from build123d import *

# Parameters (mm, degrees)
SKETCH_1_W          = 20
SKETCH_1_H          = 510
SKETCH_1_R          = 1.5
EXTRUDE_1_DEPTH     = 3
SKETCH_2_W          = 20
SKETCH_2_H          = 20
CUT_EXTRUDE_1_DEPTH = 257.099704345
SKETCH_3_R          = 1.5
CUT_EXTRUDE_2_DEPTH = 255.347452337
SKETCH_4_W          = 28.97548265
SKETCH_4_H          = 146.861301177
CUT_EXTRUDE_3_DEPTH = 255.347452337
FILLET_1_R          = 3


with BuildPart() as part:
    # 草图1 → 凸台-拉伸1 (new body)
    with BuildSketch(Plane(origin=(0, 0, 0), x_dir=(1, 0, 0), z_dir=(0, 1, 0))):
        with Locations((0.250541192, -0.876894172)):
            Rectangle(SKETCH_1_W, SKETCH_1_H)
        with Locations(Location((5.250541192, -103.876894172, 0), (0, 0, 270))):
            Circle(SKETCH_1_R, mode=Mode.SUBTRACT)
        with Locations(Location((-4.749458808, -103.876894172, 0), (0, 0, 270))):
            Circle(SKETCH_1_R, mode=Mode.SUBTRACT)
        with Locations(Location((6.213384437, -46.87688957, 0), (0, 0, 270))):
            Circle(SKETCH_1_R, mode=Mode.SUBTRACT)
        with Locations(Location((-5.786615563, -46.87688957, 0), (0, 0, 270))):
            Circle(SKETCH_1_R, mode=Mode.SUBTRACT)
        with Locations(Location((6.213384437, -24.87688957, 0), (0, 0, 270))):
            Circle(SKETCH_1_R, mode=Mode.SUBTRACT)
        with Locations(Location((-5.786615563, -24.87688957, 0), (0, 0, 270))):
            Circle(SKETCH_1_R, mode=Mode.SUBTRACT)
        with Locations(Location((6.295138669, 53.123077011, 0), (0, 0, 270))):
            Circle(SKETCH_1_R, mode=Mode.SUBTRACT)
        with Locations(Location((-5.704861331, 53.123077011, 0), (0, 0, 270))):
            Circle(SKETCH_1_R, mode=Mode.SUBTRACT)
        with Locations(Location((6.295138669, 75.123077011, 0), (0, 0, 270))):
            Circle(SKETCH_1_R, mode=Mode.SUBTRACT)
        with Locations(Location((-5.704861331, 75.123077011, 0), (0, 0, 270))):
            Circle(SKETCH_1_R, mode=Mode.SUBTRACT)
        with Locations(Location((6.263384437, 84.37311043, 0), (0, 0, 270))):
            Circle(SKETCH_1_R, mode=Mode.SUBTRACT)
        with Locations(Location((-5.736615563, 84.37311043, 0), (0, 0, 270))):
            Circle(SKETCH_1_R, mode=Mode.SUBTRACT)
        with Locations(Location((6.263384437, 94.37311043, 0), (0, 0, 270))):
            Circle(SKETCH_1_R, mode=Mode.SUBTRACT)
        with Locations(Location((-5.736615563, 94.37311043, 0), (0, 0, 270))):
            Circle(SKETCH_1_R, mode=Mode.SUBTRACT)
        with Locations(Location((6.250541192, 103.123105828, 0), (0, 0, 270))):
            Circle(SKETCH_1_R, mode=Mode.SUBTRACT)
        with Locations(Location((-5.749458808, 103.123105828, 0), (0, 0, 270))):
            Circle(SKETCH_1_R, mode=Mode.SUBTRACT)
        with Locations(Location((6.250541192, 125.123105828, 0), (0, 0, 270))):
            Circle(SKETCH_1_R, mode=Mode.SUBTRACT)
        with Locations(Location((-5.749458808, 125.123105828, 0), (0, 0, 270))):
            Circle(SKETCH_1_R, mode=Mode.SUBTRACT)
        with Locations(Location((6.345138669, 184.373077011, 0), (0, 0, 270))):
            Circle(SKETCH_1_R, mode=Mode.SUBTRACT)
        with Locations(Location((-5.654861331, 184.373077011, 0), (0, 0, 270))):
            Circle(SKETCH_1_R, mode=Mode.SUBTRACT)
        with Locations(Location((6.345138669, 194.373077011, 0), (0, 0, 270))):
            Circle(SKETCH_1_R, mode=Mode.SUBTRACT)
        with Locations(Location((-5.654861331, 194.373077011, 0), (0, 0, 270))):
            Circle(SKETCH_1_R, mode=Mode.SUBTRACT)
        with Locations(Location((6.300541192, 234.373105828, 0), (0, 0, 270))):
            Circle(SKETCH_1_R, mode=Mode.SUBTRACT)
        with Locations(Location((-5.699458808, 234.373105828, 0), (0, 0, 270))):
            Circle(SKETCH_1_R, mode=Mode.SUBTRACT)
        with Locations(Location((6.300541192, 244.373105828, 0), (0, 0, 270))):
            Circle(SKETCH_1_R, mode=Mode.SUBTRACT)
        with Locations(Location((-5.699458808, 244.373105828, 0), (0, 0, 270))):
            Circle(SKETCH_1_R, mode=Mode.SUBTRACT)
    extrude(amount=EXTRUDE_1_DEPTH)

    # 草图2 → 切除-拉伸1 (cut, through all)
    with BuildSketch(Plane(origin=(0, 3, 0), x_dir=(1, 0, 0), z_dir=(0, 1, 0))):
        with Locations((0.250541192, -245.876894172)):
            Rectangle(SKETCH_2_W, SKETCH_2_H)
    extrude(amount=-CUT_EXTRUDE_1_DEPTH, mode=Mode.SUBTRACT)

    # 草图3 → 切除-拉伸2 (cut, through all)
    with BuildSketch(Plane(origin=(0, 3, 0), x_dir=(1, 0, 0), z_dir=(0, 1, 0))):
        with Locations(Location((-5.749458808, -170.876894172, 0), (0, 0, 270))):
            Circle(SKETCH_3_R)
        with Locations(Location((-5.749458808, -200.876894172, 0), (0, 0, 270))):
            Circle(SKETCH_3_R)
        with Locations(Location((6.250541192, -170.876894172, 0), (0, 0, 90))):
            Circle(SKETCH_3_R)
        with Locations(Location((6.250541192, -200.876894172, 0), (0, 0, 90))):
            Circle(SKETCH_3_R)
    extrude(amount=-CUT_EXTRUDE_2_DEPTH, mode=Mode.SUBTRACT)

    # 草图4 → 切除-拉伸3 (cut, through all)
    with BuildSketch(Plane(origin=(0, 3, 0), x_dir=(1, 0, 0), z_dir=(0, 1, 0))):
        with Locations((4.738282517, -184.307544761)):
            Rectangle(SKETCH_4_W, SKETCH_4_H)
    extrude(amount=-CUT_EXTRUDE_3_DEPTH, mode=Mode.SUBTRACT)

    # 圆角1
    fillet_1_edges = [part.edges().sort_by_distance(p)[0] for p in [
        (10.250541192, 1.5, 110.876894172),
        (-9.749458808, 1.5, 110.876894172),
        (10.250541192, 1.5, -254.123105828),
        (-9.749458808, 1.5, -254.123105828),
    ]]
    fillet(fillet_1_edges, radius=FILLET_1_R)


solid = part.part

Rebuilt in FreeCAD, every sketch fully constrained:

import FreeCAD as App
import Part
import Sketcher
Q = App.Units.Quantity


def edges_at(feature, points):
    """Names of the edges that pass closest to the given points."""
    edges = feature.Shape.Edges
    near = lambda p: min(range(len(edges)), key=lambda i: edges[i].distToShape(Part.Vertex(*p))[0])
    return sorted({f"Edge{near(p) + 1}" for p in points})

doc = App.newDocument("Part")
body = doc.addObject("PartDesign::Body", "Body")

# Sketch on XZ plane
sketch1 = doc.addObject("Sketcher::SketchObject", "Sketch")
body.addObject(sketch1)
sketch1.AttachmentSupport = (doc.XZ_Plane, [""])
sketch1.MapMode = "FlatFace"
sketch1.addGeometry([
    Part.LineSegment(App.Vector(-9.749459, -254.123106, 0), App.Vector(-9.749459, 255.876894, 0)),  # 0
    Part.LineSegment(App.Vector(-9.749459, 255.876894, 0), App.Vector(10.250541, 255.876894, 0)),  # 1
    Part.LineSegment(App.Vector(10.250541, 255.876894, 0), App.Vector(10.250541, -254.123106, 0)),  # 2
    Part.LineSegment(App.Vector(10.250541, -254.123106, 0), App.Vector(-9.749459, -254.123106, 0)),  # 3
    Part.Circle(App.Vector(-4.749459, 103.876894, 0), App.Vector(0, 0, 1), 1.5),  # 4
    Part.Circle(App.Vector(-5.786616, 46.87689, 0), App.Vector(0, 0, 1), 1.5),  # 5
    Part.Circle(App.Vector(-5.786616, 24.87689, 0), App.Vector(0, 0, 1), 1.5),  # 6
    Part.Circle(App.Vector(-5.704861, -53.123077, 0), App.Vector(0, 0, 1), 1.5),  # 7
    Part.Circle(App.Vector(5.250541, 103.876894, 0), App.Vector(0, 0, 1), 1.5),  # 8
    Part.Circle(App.Vector(6.213384, 46.87689, 0), App.Vector(0, 0, 1), 1.5),  # 9
    Part.Circle(App.Vector(6.213384, 24.87689, 0), App.Vector(0, 0, 1), 1.5),  # 10
    Part.Circle(App.Vector(6.295139, -53.123077, 0), App.Vector(0, 0, 1), 1.5),  # 11
    Part.Circle(App.Vector(-5.704861, -75.123077, 0), App.Vector(0, 0, 1), 1.5),  # 12
    Part.Circle(App.Vector(-5.736616, -84.37311, 0), App.Vector(0, 0, 1), 1.5),  # 13
    Part.Circle(App.Vector(-5.736616, -94.37311, 0), App.Vector(0, 0, 1), 1.5),  # 14
    Part.Circle(App.Vector(-5.749459, -103.123106, 0), App.Vector(0, 0, 1), 1.5),  # 15
    Part.Circle(App.Vector(-5.749459, -125.123106, 0), App.Vector(0, 0, 1), 1.5),  # 16
    Part.Circle(App.Vector(-5.654861, -184.373077, 0), App.Vector(0, 0, 1), 1.5),  # 17
    Part.Circle(App.Vector(-5.654861, -194.373077, 0), App.Vector(0, 0, 1), 1.5),  # 18
    Part.Circle(App.Vector(-5.699459, -234.373106, 0), App.Vector(0, 0, 1), 1.5),  # 19
    Part.Circle(App.Vector(-5.699459, -244.373106, 0), App.Vector(0, 0, 1), 1.5),  # 20
    Part.Circle(App.Vector(6.295139, -75.123077, 0), App.Vector(0, 0, 1), 1.5),  # 21
    Part.Circle(App.Vector(6.263384, -84.37311, 0), App.Vector(0, 0, 1), 1.5),  # 22
    Part.Circle(App.Vector(6.263384, -94.37311, 0), App.Vector(0, 0, 1), 1.5),  # 23
    Part.Circle(App.Vector(6.250541, -103.123106, 0), App.Vector(0, 0, 1), 1.5),  # 24
    Part.Circle(App.Vector(6.250541, -125.123106, 0), App.Vector(0, 0, 1), 1.5),  # 25
    Part.Circle(App.Vector(6.345139, -184.373077, 0), App.Vector(0, 0, 1), 1.5),  # 26
    Part.Circle(App.Vector(6.345139, -194.373077, 0), App.Vector(0, 0, 1), 1.5),  # 27
    Part.Circle(App.Vector(6.300541, -234.373106, 0), App.Vector(0, 0, 1), 1.5),  # 28
    Part.Circle(App.Vector(6.300541, -244.373106, 0), App.Vector(0, 0, 1), 1.5),  # 29
], False)
sketch1.addConstraint([
    Sketcher.Constraint("Coincident", 0, 2, 1, 1),
    Sketcher.Constraint("Coincident", 1, 2, 2, 1),
    Sketcher.Constraint("Coincident", 2, 2, 3, 1),
    Sketcher.Constraint("Coincident", 3, 2, 0, 1),
    Sketcher.Constraint("Vertical", 0),
    Sketcher.Constraint("Horizontal", 1),
    Sketcher.Constraint("Vertical", 2),
    Sketcher.Constraint("Horizontal", 3),
    Sketcher.Constraint("Equal", 4, 5),
    Sketcher.Constraint("Equal", 5, 6),
    Sketcher.Constraint("Equal", 6, 7),
    Sketcher.Constraint("Equal", 7, 8),
    Sketcher.Constraint("Equal", 8, 9),
    Sketcher.Constraint("Equal", 9, 10),
    Sketcher.Constraint("Equal", 10, 11),
    Sketcher.Constraint("Equal", 11, 12),
    Sketcher.Constraint("Equal", 12, 13),
    Sketcher.Constraint("Equal", 13, 14),
    Sketcher.Constraint("Equal", 14, 15),
    Sketcher.Constraint("Equal", 15, 16),
    Sketcher.Constraint("Equal", 16, 17),
    Sketcher.Constraint("Equal", 17, 18),
    Sketcher.Constraint("Equal", 18, 19),
    Sketcher.Constraint("Equal", 19, 20),
    Sketcher.Constraint("Equal", 20, 21),
    Sketcher.Constraint("Equal", 21, 22),
    Sketcher.Constraint("Equal", 22, 23),
    Sketcher.Constraint("Equal", 23, 24),
    Sketcher.Constraint("Equal", 24, 25),
    Sketcher.Constraint("Equal", 25, 26),
    Sketcher.Constraint("Equal", 26, 27),
    Sketcher.Constraint("Equal", 27, 28),
    Sketcher.Constraint("Equal", 28, 29),
    Sketcher.Constraint("Horizontal", 4, 3, 8, 3),
    Sketcher.Constraint("Horizontal", 5, 3, 9, 3),
    Sketcher.Constraint("Horizontal", 6, 3, 10, 3),
    Sketcher.Constraint("Horizontal", 7, 3, 11, 3),
    Sketcher.Constraint("Horizontal", 12, 3, 21, 3),
    Sketcher.Constraint("Horizontal", 13, 3, 22, 3),
    Sketcher.Constraint("Horizontal", 14, 3, 23, 3),
    Sketcher.Constraint("Horizontal", 15, 3, 24, 3),
    Sketcher.Constraint("Horizontal", 16, 3, 25, 3),
    Sketcher.Constraint("Horizontal", 17, 3, 26, 3),
    Sketcher.Constraint("Horizontal", 18, 3, 27, 3),
    Sketcher.Constraint("Horizontal", 19, 3, 28, 3),
    Sketcher.Constraint("Horizontal", 20, 3, 29, 3),
    Sketcher.Constraint("Vertical", 5, 3, 6, 3),
    Sketcher.Constraint("Vertical", 9, 3, 10, 3),
    Sketcher.Constraint("Vertical", 7, 3, 12, 3),
    Sketcher.Constraint("Vertical", 13, 3, 14, 3),
    Sketcher.Constraint("Vertical", 15, 3, 16, 3),
    Sketcher.Constraint("Vertical", 17, 3, 18, 3),
    Sketcher.Constraint("Vertical", 19, 3, 20, 3),
    Sketcher.Constraint("Vertical", 11, 3, 21, 3),
    Sketcher.Constraint("Vertical", 22, 3, 23, 3),
    Sketcher.Constraint("Vertical", 24, 3, 25, 3),
    Sketcher.Constraint("Vertical", 26, 3, 27, 3),
    Sketcher.Constraint("Vertical", 28, 3, 29, 3),
    Sketcher.Constraint("Diameter", 4, Q("3 mm")),
    Sketcher.Constraint("DistanceX", 1, 1, 1, 2, Q("20 mm")),
    Sketcher.Constraint("DistanceY", 0, 1, 0, 2, Q("510 mm")),
    Sketcher.Constraint("DistanceY", 6, 3, 5, 3, Q("22 mm")),
    Sketcher.Constraint("DistanceX", 4, 3, 8, 3, Q("10 mm")),
    Sketcher.Constraint("DistanceX", 5, 3, 9, 3, Q("12 mm")),
    Sketcher.Constraint("DistanceX", 7, 3, 11, 3, Q("12 mm")),
    Sketcher.Constraint("DistanceY", 12, 3, 7, 3, Q("22 mm")),
    Sketcher.Constraint("DistanceY", 14, 3, 13, 3, Q("10 mm")),
    Sketcher.Constraint("DistanceY", 16, 3, 15, 3, Q("22 mm")),
    Sketcher.Constraint("DistanceY", 18, 3, 17, 3, Q("10 mm")),
    Sketcher.Constraint("DistanceY", 20, 3, 19, 3, Q("10 mm")),
    Sketcher.Constraint("DistanceX", 13, 3, 22, 3, Q("12 mm")),
    Sketcher.Constraint("DistanceX", 15, 3, 24, 3, Q("12 mm")),
    Sketcher.Constraint("DistanceX", 17, 3, 26, 3, Q("12 mm")),
    Sketcher.Constraint("DistanceX", 19, 3, 28, 3, Q("12 mm")),
    Sketcher.Constraint("DistanceX", 0, 2, 4, 3, Q("5 mm")),
    Sketcher.Constraint("DistanceY", 4, 3, 0, 2, Q("152 mm")),
    Sketcher.Constraint("DistanceX", 6, 3, 13, 3, Q("0.05 mm")),
    Sketcher.Constraint("DistanceY", 13, 3, 6, 3, Q("109.25 mm")),
    Sketcher.Constraint("DistanceX", 12, 3, 17, 3, Q("0.05 mm")),
    Sketcher.Constraint("DistanceY", 17, 3, 12, 3, Q("109.25 mm")),
    Sketcher.Constraint("DistanceX", 16, 3, 19, 3, Q("0.05 mm")),
    Sketcher.Constraint("DistanceY", 19, 3, 16, 3, Q("109.25 mm")),
    Sketcher.Constraint("DistanceX", 29, 3, 2, 2, Q("3.95 mm")),
    Sketcher.Constraint("DistanceY", 2, 2, 29, 3, Q("9.75 mm")),
    Sketcher.Constraint("DistanceX", 4, 3, -1, 1, Q("4.749459 mm")),
    Sketcher.Constraint("DistanceY", -1, 1, 5, 3, Q("46.87689 mm")),
    Sketcher.Constraint("DistanceX", 7, 3, -1, 1, Q("5.704861 mm")),
    Sketcher.Constraint("DistanceY", 7, 3, 4, 3, Q("156.999971 mm")),
    Sketcher.Constraint("DistanceY", -1, 1, 4, 3, Q("103.876894 mm")),
    Sketcher.Constraint("DistanceX", 5, 3, -1, 1, Q("5.786616 mm")),
])
pad1 = doc.addObject("PartDesign::Pad", "Pad")
body.addObject(pad1)
pad1.Profile = sketch1
pad1.Length = 3
pad1.Reversed = True

# Sketch on XZ plane
sketch2 = doc.addObject("Sketcher::SketchObject", "Sketch001")
body.addObject(sketch2)
sketch2.AttachmentSupport = (doc.XZ_Plane, [""])
sketch2.MapMode = "FlatFace"
sketch2.AttachmentOffset = App.Placement(App.Vector(0, 0, -3), App.Rotation())
sketch2.addGeometry([
    Part.LineSegment(App.Vector(-9.749459, 235.876894, 0), App.Vector(-9.749459, 255.876894, 0)),
    Part.LineSegment(App.Vector(-9.749459, 255.876894, 0), App.Vector(10.250541, 255.876894, 0)),
    Part.LineSegment(App.Vector(10.250541, 255.876894, 0), App.Vector(10.250541, 235.876894, 0)),
    Part.LineSegment(App.Vector(10.250541, 235.876894, 0), App.Vector(-9.749459, 235.876894, 0)),
], False)
sketch2.addConstraint([
    Sketcher.Constraint("Coincident", 0, 2, 1, 1),
    Sketcher.Constraint("Coincident", 1, 2, 2, 1),
    Sketcher.Constraint("Coincident", 2, 2, 3, 1),
    Sketcher.Constraint("Coincident", 3, 2, 0, 1),
    Sketcher.Constraint("Vertical", 0),
    Sketcher.Constraint("Horizontal", 1),
    Sketcher.Constraint("Vertical", 2),
    Sketcher.Constraint("Horizontal", 3),
    Sketcher.Constraint("Equal", 3, 0),
    Sketcher.Constraint("DistanceX", 1, 1, 1, 2, Q("20 mm")),
    Sketcher.Constraint("DistanceX", 0, 2, -1, 1, Q("9.749459 mm")),
    Sketcher.Constraint("DistanceY", -1, 1, 0, 2, Q("255.876894 mm")),
])
pocket1 = doc.addObject("PartDesign::Pocket", "Pocket")
body.addObject(pocket1)
pocket1.Profile = sketch2
pocket1.Type = "ThroughAll"
pocket1.Reversed = True

# Sketch on XZ plane
sketch3 = doc.addObject("Sketcher::SketchObject", "Sketch002")
body.addObject(sketch3)
sketch3.AttachmentSupport = (doc.XZ_Plane, [""])
sketch3.MapMode = "FlatFace"
sketch3.AttachmentOffset = App.Placement(App.Vector(0, 0, -3), App.Rotation())
sketch3.addGeometry([
    Part.Circle(App.Vector(-5.749459, 170.876894, 0), App.Vector(0, 0, 1), 1.5),
    Part.Circle(App.Vector(-5.749459, 200.876894, 0), App.Vector(0, 0, 1), 1.5),
    Part.Circle(App.Vector(6.250541, 170.876894, 0), App.Vector(0, 0, 1), 1.5),
    Part.Circle(App.Vector(6.250541, 200.876894, 0), App.Vector(0, 0, 1), 1.5),
], False)
sketch3.addConstraint([
    Sketcher.Constraint("Equal", 0, 1),
    Sketcher.Constraint("Equal", 1, 2),
    Sketcher.Constraint("Equal", 2, 3),
    Sketcher.Constraint("Horizontal", 0, 3, 2, 3),
    Sketcher.Constraint("Horizontal", 1, 3, 3, 3),
    Sketcher.Constraint("Vertical", 0, 3, 1, 3),
    Sketcher.Constraint("Vertical", 2, 3, 3, 3),
    Sketcher.Constraint("Diameter", 0, Q("3 mm")),
    Sketcher.Constraint("DistanceY", 0, 3, 1, 3, Q("30 mm")),
    Sketcher.Constraint("DistanceX", 0, 3, 2, 3, Q("12 mm")),
    Sketcher.Constraint("DistanceX", 0, 3, -1, 1, Q("5.749459 mm")),
    Sketcher.Constraint("DistanceY", -1, 1, 0, 3, Q("170.876894 mm")),
])
pocket2 = doc.addObject("PartDesign::Pocket", "Pocket001")
body.addObject(pocket2)
pocket2.Profile = sketch3
pocket2.Type = "ThroughAll"
pocket2.Reversed = True

# Sketch on XZ plane
sketch4 = doc.addObject("Sketcher::SketchObject", "Sketch003")
body.addObject(sketch4)
sketch4.AttachmentSupport = (doc.XZ_Plane, [""])
sketch4.MapMode = "FlatFace"
sketch4.AttachmentOffset = App.Placement(App.Vector(0, 0, -3), App.Rotation())
sketch4.addGeometry([
    Part.LineSegment(App.Vector(-9.749459, 110.876894, 0), App.Vector(-9.749459, 257.738195, 0)),
    Part.LineSegment(App.Vector(-9.749459, 257.738195, 0), App.Vector(19.226024, 257.738195, 0)),
    Part.LineSegment(App.Vector(19.226024, 257.738195, 0), App.Vector(19.226024, 110.876894, 0)),
    Part.LineSegment(App.Vector(19.226024, 110.876894, 0), App.Vector(-9.749459, 110.876894, 0)),
], False)
sketch4.addConstraint([
    Sketcher.Constraint("Coincident", 0, 2, 1, 1),
    Sketcher.Constraint("Coincident", 1, 2, 2, 1),
    Sketcher.Constraint("Coincident", 2, 2, 3, 1),
    Sketcher.Constraint("Coincident", 3, 2, 0, 1),
    Sketcher.Constraint("Vertical", 0),
    Sketcher.Constraint("Horizontal", 1),
    Sketcher.Constraint("Vertical", 2),
    Sketcher.Constraint("Horizontal", 3),
    Sketcher.Constraint("DistanceY", 0, 1, 0, 2, Q("146.861301 mm")),
    Sketcher.Constraint("DistanceX", 1, 1, 1, 2, Q("28.975483 mm")),
    Sketcher.Constraint("DistanceX", 0, 2, -1, 1, Q("9.749459 mm")),
    Sketcher.Constraint("DistanceY", -1, 1, 0, 2, Q("257.738195 mm")),
])
pocket3 = doc.addObject("PartDesign::Pocket", "Pocket002")
body.addObject(pocket3)
pocket3.Profile = sketch4
pocket3.Type = "ThroughAll"
pocket3.Reversed = True
doc.recompute()

fillet = doc.addObject("PartDesign::Fillet", "Fillet")
body.addObject(fillet)
fillet.Base = (pocket3, edges_at(pocket3, [
    (10.251, 1.5, 110.877),
    (-9.749, 1.5, 110.877),
    (10.251, 1.5, -254.123),
    (-9.749, 1.5, -254.123),
]))
fillet.Radius = 3

doc.recompute()
